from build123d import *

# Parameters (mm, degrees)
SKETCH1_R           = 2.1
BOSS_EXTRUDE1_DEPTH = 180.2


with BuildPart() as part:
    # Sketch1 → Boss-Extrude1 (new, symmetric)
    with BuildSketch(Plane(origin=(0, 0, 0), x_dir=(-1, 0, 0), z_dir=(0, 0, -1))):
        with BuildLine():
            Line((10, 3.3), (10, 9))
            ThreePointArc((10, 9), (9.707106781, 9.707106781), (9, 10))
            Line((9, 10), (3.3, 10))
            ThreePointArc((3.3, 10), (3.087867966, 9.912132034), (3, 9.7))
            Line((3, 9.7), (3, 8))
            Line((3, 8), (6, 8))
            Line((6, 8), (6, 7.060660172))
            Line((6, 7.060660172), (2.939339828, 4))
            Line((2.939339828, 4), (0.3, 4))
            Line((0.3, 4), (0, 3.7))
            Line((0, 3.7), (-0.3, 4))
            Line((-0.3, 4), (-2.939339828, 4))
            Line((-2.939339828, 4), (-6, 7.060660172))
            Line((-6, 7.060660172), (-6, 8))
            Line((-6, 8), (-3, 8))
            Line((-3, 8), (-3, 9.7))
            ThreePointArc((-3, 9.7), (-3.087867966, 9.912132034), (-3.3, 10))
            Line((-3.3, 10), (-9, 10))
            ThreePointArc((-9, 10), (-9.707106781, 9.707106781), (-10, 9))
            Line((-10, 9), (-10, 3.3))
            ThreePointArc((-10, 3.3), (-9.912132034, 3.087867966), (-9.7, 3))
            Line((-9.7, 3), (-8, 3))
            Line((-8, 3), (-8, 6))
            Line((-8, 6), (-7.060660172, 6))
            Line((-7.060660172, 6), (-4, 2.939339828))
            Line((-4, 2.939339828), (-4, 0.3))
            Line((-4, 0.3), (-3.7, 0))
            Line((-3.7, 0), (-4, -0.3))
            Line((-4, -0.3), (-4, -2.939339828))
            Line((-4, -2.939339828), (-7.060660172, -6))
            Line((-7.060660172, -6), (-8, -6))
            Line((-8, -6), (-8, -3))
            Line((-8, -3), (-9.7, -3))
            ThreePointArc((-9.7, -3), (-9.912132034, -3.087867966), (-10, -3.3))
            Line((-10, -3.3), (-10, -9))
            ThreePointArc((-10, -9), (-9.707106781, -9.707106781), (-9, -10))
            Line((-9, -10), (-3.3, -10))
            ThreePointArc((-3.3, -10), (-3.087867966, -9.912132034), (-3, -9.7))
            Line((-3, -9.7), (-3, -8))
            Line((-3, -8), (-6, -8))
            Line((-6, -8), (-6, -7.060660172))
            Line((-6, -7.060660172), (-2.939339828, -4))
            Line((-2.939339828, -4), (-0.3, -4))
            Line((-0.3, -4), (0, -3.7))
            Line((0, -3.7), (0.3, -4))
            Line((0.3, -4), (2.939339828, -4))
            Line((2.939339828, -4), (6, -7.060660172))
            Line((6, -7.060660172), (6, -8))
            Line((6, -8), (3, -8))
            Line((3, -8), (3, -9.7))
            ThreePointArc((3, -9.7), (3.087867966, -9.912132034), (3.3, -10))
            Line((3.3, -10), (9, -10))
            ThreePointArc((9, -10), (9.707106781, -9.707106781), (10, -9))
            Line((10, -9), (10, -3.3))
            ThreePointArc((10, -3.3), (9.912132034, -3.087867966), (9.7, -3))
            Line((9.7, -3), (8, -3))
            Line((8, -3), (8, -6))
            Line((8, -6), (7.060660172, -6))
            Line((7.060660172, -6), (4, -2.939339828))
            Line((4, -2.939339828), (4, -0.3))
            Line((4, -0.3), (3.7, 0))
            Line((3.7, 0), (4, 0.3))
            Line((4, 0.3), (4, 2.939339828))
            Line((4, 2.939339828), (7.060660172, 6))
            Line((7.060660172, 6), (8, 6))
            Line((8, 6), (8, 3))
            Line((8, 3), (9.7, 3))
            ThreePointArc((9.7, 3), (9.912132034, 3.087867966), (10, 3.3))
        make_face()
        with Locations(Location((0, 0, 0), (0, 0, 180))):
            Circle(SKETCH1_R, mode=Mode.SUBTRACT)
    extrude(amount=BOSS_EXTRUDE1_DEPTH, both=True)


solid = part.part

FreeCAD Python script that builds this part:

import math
import FreeCAD as App
import Part
import Sketcher
from FreeCAD import Vector
Q = App.Units.Quantity

doc = App.newDocument("Part")
body = doc.addObject("PartDesign::Body", "Body")

sketch1 = body.newObject("Sketcher::SketchObject", "Sketch")
sketch1.AttachmentSupport = (doc.getObject("XY_Plane"), [""])
sketch1.MapMode = "FlatFace"
sketch1.addGeometry([
    Part.LineSegment(Vector(-10, 3.3, 0), Vector(-10, 9, 0)),
    Part.ArcOfCircle(Part.Circle(Vector(-9, 9, 0), Vector(0, 0, 1), 1), math.radians(90), math.radians(180)),
    Part.LineSegment(Vector(-9, 10, 0), Vector(-3.3, 10, 0)),
    Part.ArcOfCircle(Part.Circle(Vector(-3.3, 9.7, 0), Vector(0, 0, 1), 0.3), math.radians(0), math.radians(90)),
    Part.LineSegment(Vector(-3, 9.7, 0), Vector(-3, 8, 0)),
    Part.LineSegment(Vector(-3, 8, 0), Vector(-6, 8, 0)),
    Part.LineSegment(Vector(-6, 8, 0), Vector(-6, 7.06, 0)),
    Part.LineSegment(Vector(-6, 7.06, 0), Vector(-2.94, 4, 0)),
    Part.LineSegment(Vector(-2.94, 4, 0), Vector(-0.3, 4, 0)),
    Part.LineSegment(Vector(-0.3, 4, 0), Vector(0, 3.7, 0)),
    Part.LineSegment(Vector(0, 3.7, 0), Vector(0.3, 4, 0)),
    Part.LineSegment(Vector(0.3, 4, 0), Vector(2.94, 4, 0)),
    Part.LineSegment(Vector(2.94, 4, 0), Vector(6, 7.06, 0)),
    Part.LineSegment(Vector(6, 7.06, 0), Vector(6, 8, 0)),
    Part.LineSegment(Vector(6, 8, 0), Vector(3, 8, 0)),
    Part.LineSegment(Vector(3, 8, 0), Vector(3, 9.7, 0)),
    Part.ArcOfCircle(Part.Circle(Vector(3.3, 9.7, 0), Vector(0, 0, 1), 0.3), math.radians(90), math.radians(180)),
    Part.LineSegment(Vector(3.3, 10, 0), Vector(9, 10, 0)),
    Part.ArcOfCircle(Part.Circle(Vector(9, 9, 0), Vector(0, 0, 1), 1), math.radians(0), math.radians(90)),
    Part.LineSegment(Vector(10, 9, 0), Vector(10, 3.3, 0)),
    Part.ArcOfCircle(Part.Circle(Vector(9.7, 3.3, 0), Vector(0, 0, 1), 0.3), math.radians(-90), math.radians(0)),
    Part.LineSegment(Vector(9.7, 3, 0), Vector(8, 3, 0)),
    Part.LineSegment(Vector(8, 3, 0), Vector(8, 6, 0)),
    Part.LineSegment(Vector(8, 6, 0), Vector(7.06, 6, 0)),
    Part.LineSegment(Vector(7.06, 6, 0), Vector(4, 2.94, 0)),
    Part.LineSegment(Vector(4, 2.94, 0), Vector(4, 0.3, 0)),
    Part.LineSegment(Vector(4, 0.3, 0), Vector(3.7, 0, 0)),
    Part.LineSegment(Vector(3.7, 0, 0), Vector(4, -0.3, 0)),
    Part.LineSegment(Vector(4, -0.3, 0), Vector(4, -2.94, 0)),
    Part.LineSegment(Vector(4, -2.94, 0), Vector(7.06, -6, 0)),
    Part.LineSegment(Vector(7.06, -6, 0), Vector(8, -6, 0)),
    Part.LineSegment(Vector(8, -6, 0), Vector(8, -3, 0)),
    Part.LineSegment(Vector(8, -3, 0), Vector(9.7, -3, 0)),
    Part.ArcOfCircle(Part.Circle(Vector(9.7, -3.3, 0), Vector(0, 0, 1), 0.3), math.radians(0), math.radians(90)),
    Part.LineSegment(Vector(10, -3.3, 0), Vector(10, -9, 0)),
    Part.ArcOfCircle(Part.Circle(Vector(9, -9, 0), Vector(0, 0, 1), 1), math.radians(-90), math.radians(0)),
    Part.LineSegment(Vector(9, -10, 0), Vector(3.3, -10, 0)),
    Part.ArcOfCircle(Part.Circle(Vector(3.3, -9.7, 0), Vector(0, 0, 1), 0.3), math.radians(-180), math.radians(-90)),
    Part.LineSegment(Vector(3, -9.7, 0), Vector(3, -8, 0)),
    Part.LineSegment(Vector(3, -8, 0), Vector(6, -8, 0)),
    Part.LineSegment(Vector(6, -8, 0), Vector(6, -7.06, 0)),
    Part.LineSegment(Vector(6, -7.06, 0), Vector(2.94, -4, 0)),
    Part.LineSegment(Vector(2.94, -4, 0), Vector(0.3, -4, 0)),
    Part.LineSegment(Vector(0.3, -4, 0), Vector(0, -3.7, 0)),
    Part.LineSegment(Vector(0, -3.7, 0), Vector(-0.3, -4, 0)),
    Part.LineSegment(Vector(-0.3, -4, 0), Vector(-2.94, -4, 0)),
    Part.LineSegment(Vector(-2.94, -4, 0), Vector(-6, -7.06, 0)),
    Part.LineSegment(Vector(-6, -7.06, 0), Vector(-6, -8, 0)),
    Part.LineSegment(Vector(-6, -8, 0), Vector(-3, -8, 0)),
    Part.LineSegment(Vector(-3, -8, 0), Vector(-3, -9.7, 0)),
    Part.ArcOfCircle(Part.Circle(Vector(-3.3, -9.7, 0), Vector(0, 0, 1), 0.3), math.radians(-90), math.radians(0)),
    Part.LineSegment(Vector(-3.3, -10, 0), Vector(-9, -10, 0)),
    Part.ArcOfCircle(Part.Circle(Vector(-9, -9, 0), Vector(0, 0, 1), 1), math.radians(-180), math.radians(-90)),
    Part.LineSegment(Vector(-10, -9, 0), Vector(-10, -3.3, 0)),
    Part.ArcOfCircle(Part.Circle(Vector(-9.7, -3.3, 0), Vector(0, 0, 1), 0.3), math.radians(90), math.radians(180)),
    Part.LineSegment(Vector(-9.7, -3, 0), Vector(-8, -3, 0)),
    Part.LineSegment(Vector(-8, -3, 0), Vector(-8, -6, 0)),
    Part.LineSegment(Vector(-8, -6, 0), Vector(-7.06, -6, 0)),
    Part.LineSegment(Vector(-7.06, -6, 0), Vector(-4, -2.94, 0)),
    Part.LineSegment(Vector(-4, -2.94, 0), Vector(-4, -0.3, 0)),
    Part.LineSegment(Vector(-4, -0.3, 0), Vector(-3.7, 0, 0)),
    Part.LineSegment(Vector(-3.7, 0, 0), Vector(-4, 0.3, 0)),
    Part.LineSegment(Vector(-4, 0.3, 0), Vector(-4, 2.94, 0)),
    Part.LineSegment(Vector(-4, 2.94, 0), Vector(-7.06, 6, 0)),
    Part.LineSegment(Vector(-7.06, 6, 0), Vector(-8, 6, 0)),
    Part.LineSegment(Vector(-8, 6, 0), Vector(-8, 3, 0)),
    Part.LineSegment(Vector(-8, 3, 0), Vector(-9.7, 3, 0)),
    Part.ArcOfCircle(Part.Circle(Vector(-9.7, 3.3, 0), Vector(0, 0, 1), 0.3), math.radians(-180), math.radians(-90)),
    Part.Circle(Vector(0, 0, 0), Vector(0, 0, 1), 2.1),
], False)
sketch1.addConstraint([
    Sketcher.Constraint("Tangent", 0, 2, 1, 2),
    Sketcher.Constraint("Tangent", 1, 1, 2, 1),
    Sketcher.Constraint("Tangent", 2, 2, 3, 2),
    Sketcher.Constraint("Tangent", 3, 1, 4, 1),
    Sketcher.Constraint("Coincident", 4, 2, 5, 1),
    Sketcher.Constraint("Coincident", 5, 2, 6, 1),
    Sketcher.Constraint("Coincident", 6, 2, 7, 1),
    Sketcher.Constraint("Coincident", 7, 2, 8, 1),
    Sketcher.Constraint("Coincident", 8, 2, 9, 1),
    Sketcher.Constraint("Coincident", 9, 2, 10, 1),
    Sketcher.Constraint("Coincident", 10, 2, 11, 1),
    Sketcher.Constraint("Coincident", 11, 2, 12, 1),
    Sketcher.Constraint("Coincident", 12, 2, 13, 1),
    Sketcher.Constraint("Coincident", 13, 2, 14, 1),
    Sketcher.Constraint("Coincident", 14, 2, 15, 1),
    Sketcher.Constraint("Tangent", 15, 2, 16, 2),
    Sketcher.Constraint("Tangent", 16, 1, 17, 1),
    Sketcher.Constraint("Tangent", 17, 2, 18, 2),
    Sketcher.Constraint("Tangent", 18, 1, 19, 1),
    Sketcher.Constraint("Tangent", 19, 2, 20, 2),
    Sketcher.Constraint("Tangent", 20, 1, 21, 1),
    Sketcher.Constraint("Coincident", 21, 2, 22, 1),
    Sketcher.Constraint("Coincident", 22, 2, 23, 1),
    Sketcher.Constraint("Coincident", 23, 2, 24, 1),
    Sketcher.Constraint("Coincident", 24, 2, 25, 1),
    Sketcher.Constraint("Coincident", 25, 2, 26, 1),
    Sketcher.Constraint("Coincident", 26, 2, 27, 1),
    Sketcher.Constraint("Coincident", 27, 2, 28, 1),
    Sketcher.Constraint("Coincident", 28, 2, 29, 1),
    Sketcher.Constraint("Coincident", 29, 2, 30, 1),
    Sketcher.Constraint("Coincident", 30, 2, 31, 1),
    Sketcher.Constraint("Coincident", 31, 2, 32, 1),
    Sketcher.Constraint("Tangent", 32, 2, 33, 2),
    Sketcher.Constraint("Tangent", 33, 1, 34, 1),
    Sketcher.Constraint("Tangent", 34, 2, 35, 2),
    Sketcher.Constraint("Tangent", 35, 1, 36, 1),
    Sketcher.Constraint("Tangent", 36, 2, 37, 2),
    Sketcher.Constraint("Tangent", 37, 1, 38, 1),
    Sketcher.Constraint("Coincident", 38, 2, 39, 1),
    Sketcher.Constraint("Coincident", 39, 2, 40, 1),
    Sketcher.Constraint("Coincident", 40, 2, 41, 1),
    Sketcher.Constraint("Coincident", 41, 2, 42, 1),
    Sketcher.Constraint("Coincident", 42, 2, 43, 1),
    Sketcher.Constraint("Coincident", 43, 2, 44, 1),
    Sketcher.Constraint("Coincident", 44, 2, 45, 1),
    Sketcher.Constraint("Coincident", 45, 2, 46, 1),
    Sketcher.Constraint("Coincident", 46, 2, 47, 1),
    Sketcher.Constraint("Coincident", 47, 2, 48, 1),
    Sketcher.Constraint("Coincident", 48, 2, 49, 1),
    Sketcher.Constraint("Tangent", 49, 2, 50, 2),
    Sketcher.Constraint("Tangent", 50, 1, 51, 1),
    Sketcher.Constraint("Tangent", 51, 2, 52, 2),
    Sketcher.Constraint("Tangent", 52, 1, 53, 1),
    Sketcher.Constraint("Tangent", 53, 2, 54, 2),
    Sketcher.Constraint("Tangent", 54, 1, 55, 1),
    Sketcher.Constraint("Coincident", 55, 2, 56, 1),
    Sketcher.Constraint("Coincident", 56, 2, 57, 1),
    Sketcher.Constraint("Coincident", 57, 2, 58, 1),
    Sketcher.Constraint("Coincident", 58, 2, 59, 1),
    Sketcher.Constraint("Coincident", 59, 2, 60, 1),
    Sketcher.Constraint("Coincident", 60, 2, 61, 1),
    Sketcher.Constraint("Coincident", 61, 2, 62, 1),
    Sketcher.Constraint("Coincident", 62, 2, 63, 1),
    Sketcher.Constraint("Coincident", 63, 2, 64, 1),
    Sketcher.Constraint("Coincident", 64, 2, 65, 1),
    Sketcher.Constraint("Coincident", 65, 2, 66, 1),
    Sketcher.Constraint("Tangent", 66, 2, 67, 2),
    Sketcher.Constraint("Tangent", 67, 1, 0, 1),
    Sketcher.Constraint("Vertical", 0),
    Sketcher.Constraint("Horizontal", 2),
    Sketcher.Constraint("Vertical", 4),
    Sketcher.Constraint("Horizontal", 5),
    Sketcher.Constraint("Vertical", 6),
    Sketcher.Constraint("Horizontal", 8),
    Sketcher.Constraint("Horizontal", 11),
    Sketcher.Constraint("Vertical", 13),
    Sketcher.Constraint("Horizontal", 14),
    Sketcher.Constraint("Vertical", 15),
    Sketcher.Constraint("Horizontal", 17),
    Sketcher.Constraint("Vertical", 19),
    Sketcher.Constraint("Horizontal", 21),
    Sketcher.Constraint("Vertical", 22),
    Sketcher.Constraint("Horizontal", 23),
    Sketcher.Constraint("Vertical", 25),
    Sketcher.Constraint("Vertical", 28),
    Sketcher.Constraint("Horizontal", 30),
    Sketcher.Constraint("Vertical", 31),
    Sketcher.Constraint("Horizontal", 32),
    Sketcher.Constraint("Vertical", 34),
    Sketcher.Constraint("Horizontal", 36),
    Sketcher.Constraint("Vertical", 38),
    Sketcher.Constraint("Horizontal", 39),
    Sketcher.Constraint("Vertical", 40),
    Sketcher.Constraint("Horizontal", 42),
    Sketcher.Constraint("Horizontal", 45),
    Sketcher.Constraint("Vertical", 47),
    Sketcher.Constraint("Horizontal", 48),
    Sketcher.Constraint("Vertical", 49),
    Sketcher.Constraint("Horizontal", 51),
    Sketcher.Constraint("Vertical", 53),
    Sketcher.Constraint("Horizontal", 55),
    Sketcher.Constraint("Vertical", 56),
    Sketcher.Constraint("Horizontal", 57),
    Sketcher.Constraint("Vertical", 59),
    Sketcher.Constraint("Vertical", 62),
    Sketcher.Constraint("Horizontal", 64),
    Sketcher.Constraint("Vertical", 65),
    Sketcher.Constraint("Horizontal", 66),
    Sketcher.Constraint("Coincident", 68, 3, -1, 1),
    Sketcher.Constraint("Equal", 3, 16),
    Sketcher.Constraint("Equal", 1, 18),
    Sketcher.Constraint("Equal", 16, 20),
    Sketcher.Constraint("Equal", 20, 33),
    Sketcher.Constraint("Equal", 18, 35),
    Sketcher.Constraint("Equal", 33, 37),
    Sketcher.Constraint("Equal", 37, 50),
    Sketcher.Constraint("Equal", 35, 52),
    Sketcher.Constraint("Equal", 50, 54),
    Sketcher.Constraint("Equal", 54, 67),
    Sketcher.Constraint("Symmetric", 1, 3, 35, 3, -1, 1),
    Sketcher.Constraint("Symmetric", 16, 3, 50, 3, -1, 1),
    Sketcher.Constraint("Symmetric", 20, 3, 54, 3, -1, 1),
    Sketcher.Constraint("Symmetric", 4, 2, 38, 2, -1, 1),
    Sketcher.Constraint("Symmetric", 6, 2, 40, 2, -1, 1),
    Sketcher.Constraint("Symmetric", 7, 2, 41, 2, -1, 1),
    Sketcher.Constraint("Symmetric", 9, 2, 43, 2, -1, 1),
    Sketcher.Constraint("Symmetric", 10, 2, 44, 2, -1, 1),
    Sketcher.Constraint("Symmetric", 12, 2, 46, 2, -1, 1),
    Sketcher.Constraint("Symmetric", 22, 2, 56, 2, -1, 1),
    Sketcher.Constraint("Symmetric", 24, 2, 58, 2, -1, 1),
    Sketcher.Constraint("Symmetric", 26, 2, 60, 2, -1, 1),
    Sketcher.Constraint("Symmetric", 27, 2, 61, 2, -1, 1),
    Sketcher.Constraint("Symmetric", 29, 2, 63, 2, -1, 1),
    Sketcher.Constraint("Symmetric", 31, 2, 65, 2, -1, 1),
    Sketcher.Constraint("Symmetric", 3, 3, 16, 3, -2),
    Sketcher.Constraint("Symmetric", 33, 3, 54, 3, -2),
    Sketcher.Constraint("Symmetric", 8, 2, 10, 2, -2),
    Sketcher.Constraint("Symmetric", 6, 2, 12, 2, -2),
    Sketcher.Constraint("Symmetric", 30, 2, 56, 2, -2),
    Sketcher.Constraint("Symmetric", 28, 2, 58, 2, -2),
    Sketcher.Constraint("PointOnObject", 9, 2, -2),
    Sketcher.Constraint("PointOnObject", 26, 2, -1),
    Sketcher.Constraint("Parallel", 7, 9),
    Sketcher.Constraint("Perpendicular", 9, 10),
    Sketcher.Constraint("Parallel", 10, 12),
    Sketcher.Constraint("Parallel", 12, 24),
    Sketcher.Constraint("Parallel", 24, 26),
    Sketcher.Constraint("Perpendicular", 26, 27),
    Sketcher.Constraint("Parallel", 27, 29),
    Sketcher.Constraint("Parallel", 41, 43),
    Sketcher.Constraint("Parallel", 44, 46),
    Sketcher.Constraint("Parallel", 46, 58),
    Sketcher.Constraint("Parallel", 58, 60),
    Sketcher.Constraint("Parallel", 61, 63),
    Sketcher.Constraint("Horizontal", 5, 2, 13, 2),
    Sketcher.Constraint("Horizontal", 39, 2, 47, 2),
    Sketcher.Constraint("Equal", 51, 0),
    Sketcher.Constraint("Equal", 66, 4),
    Sketcher.Constraint("Equal", 64, 6),
    Sketcher.Constraint("Equal", 48, 22),
    Sketcher.Constraint("Equal", 45, 25),
    Sketcher.Constraint("Equal", 12, 24),
    Sketcher.Constraint("Equal", 10, 26),
    Sketcher.Constraint("Radius", 1, Q("1 mm")),
    Sketcher.Constraint("Diameter", 68, Q("4.2 mm")),
    Sketcher.Constraint("Radius", 3, Q("0.3 mm")),
    Sketcher.Constraint("DistanceX", 5, 2, 5, 1, Q("3 mm")),
    Sketcher.Constraint("DistanceX", 2, 1, 2, 2, Q("5.7 mm")),
    Sketcher.Constraint("DistanceX", 21, 2, 21, 1, Q("1.7 mm")),
    Sketcher.Constraint("DistanceX", 1, 3, -1, 1, Q("9 mm")),
    Sketcher.Constraint("DistanceY", -1, 1, 7, 2, Q("4 mm")),
    Sketcher.Constraint("DistanceX", 8, 2, -1, 1, Q("0.3 mm")),
    Sketcher.Constraint("DistanceX", 8, 1, 8, 2, Q("2.63934 mm")),
])
pad1 = body.newObject("PartDesign::Pad", "Pad")
pad1.Profile = sketch1
pad1.Length = 360.4
pad1.Midplane = True

doc.recompute()
